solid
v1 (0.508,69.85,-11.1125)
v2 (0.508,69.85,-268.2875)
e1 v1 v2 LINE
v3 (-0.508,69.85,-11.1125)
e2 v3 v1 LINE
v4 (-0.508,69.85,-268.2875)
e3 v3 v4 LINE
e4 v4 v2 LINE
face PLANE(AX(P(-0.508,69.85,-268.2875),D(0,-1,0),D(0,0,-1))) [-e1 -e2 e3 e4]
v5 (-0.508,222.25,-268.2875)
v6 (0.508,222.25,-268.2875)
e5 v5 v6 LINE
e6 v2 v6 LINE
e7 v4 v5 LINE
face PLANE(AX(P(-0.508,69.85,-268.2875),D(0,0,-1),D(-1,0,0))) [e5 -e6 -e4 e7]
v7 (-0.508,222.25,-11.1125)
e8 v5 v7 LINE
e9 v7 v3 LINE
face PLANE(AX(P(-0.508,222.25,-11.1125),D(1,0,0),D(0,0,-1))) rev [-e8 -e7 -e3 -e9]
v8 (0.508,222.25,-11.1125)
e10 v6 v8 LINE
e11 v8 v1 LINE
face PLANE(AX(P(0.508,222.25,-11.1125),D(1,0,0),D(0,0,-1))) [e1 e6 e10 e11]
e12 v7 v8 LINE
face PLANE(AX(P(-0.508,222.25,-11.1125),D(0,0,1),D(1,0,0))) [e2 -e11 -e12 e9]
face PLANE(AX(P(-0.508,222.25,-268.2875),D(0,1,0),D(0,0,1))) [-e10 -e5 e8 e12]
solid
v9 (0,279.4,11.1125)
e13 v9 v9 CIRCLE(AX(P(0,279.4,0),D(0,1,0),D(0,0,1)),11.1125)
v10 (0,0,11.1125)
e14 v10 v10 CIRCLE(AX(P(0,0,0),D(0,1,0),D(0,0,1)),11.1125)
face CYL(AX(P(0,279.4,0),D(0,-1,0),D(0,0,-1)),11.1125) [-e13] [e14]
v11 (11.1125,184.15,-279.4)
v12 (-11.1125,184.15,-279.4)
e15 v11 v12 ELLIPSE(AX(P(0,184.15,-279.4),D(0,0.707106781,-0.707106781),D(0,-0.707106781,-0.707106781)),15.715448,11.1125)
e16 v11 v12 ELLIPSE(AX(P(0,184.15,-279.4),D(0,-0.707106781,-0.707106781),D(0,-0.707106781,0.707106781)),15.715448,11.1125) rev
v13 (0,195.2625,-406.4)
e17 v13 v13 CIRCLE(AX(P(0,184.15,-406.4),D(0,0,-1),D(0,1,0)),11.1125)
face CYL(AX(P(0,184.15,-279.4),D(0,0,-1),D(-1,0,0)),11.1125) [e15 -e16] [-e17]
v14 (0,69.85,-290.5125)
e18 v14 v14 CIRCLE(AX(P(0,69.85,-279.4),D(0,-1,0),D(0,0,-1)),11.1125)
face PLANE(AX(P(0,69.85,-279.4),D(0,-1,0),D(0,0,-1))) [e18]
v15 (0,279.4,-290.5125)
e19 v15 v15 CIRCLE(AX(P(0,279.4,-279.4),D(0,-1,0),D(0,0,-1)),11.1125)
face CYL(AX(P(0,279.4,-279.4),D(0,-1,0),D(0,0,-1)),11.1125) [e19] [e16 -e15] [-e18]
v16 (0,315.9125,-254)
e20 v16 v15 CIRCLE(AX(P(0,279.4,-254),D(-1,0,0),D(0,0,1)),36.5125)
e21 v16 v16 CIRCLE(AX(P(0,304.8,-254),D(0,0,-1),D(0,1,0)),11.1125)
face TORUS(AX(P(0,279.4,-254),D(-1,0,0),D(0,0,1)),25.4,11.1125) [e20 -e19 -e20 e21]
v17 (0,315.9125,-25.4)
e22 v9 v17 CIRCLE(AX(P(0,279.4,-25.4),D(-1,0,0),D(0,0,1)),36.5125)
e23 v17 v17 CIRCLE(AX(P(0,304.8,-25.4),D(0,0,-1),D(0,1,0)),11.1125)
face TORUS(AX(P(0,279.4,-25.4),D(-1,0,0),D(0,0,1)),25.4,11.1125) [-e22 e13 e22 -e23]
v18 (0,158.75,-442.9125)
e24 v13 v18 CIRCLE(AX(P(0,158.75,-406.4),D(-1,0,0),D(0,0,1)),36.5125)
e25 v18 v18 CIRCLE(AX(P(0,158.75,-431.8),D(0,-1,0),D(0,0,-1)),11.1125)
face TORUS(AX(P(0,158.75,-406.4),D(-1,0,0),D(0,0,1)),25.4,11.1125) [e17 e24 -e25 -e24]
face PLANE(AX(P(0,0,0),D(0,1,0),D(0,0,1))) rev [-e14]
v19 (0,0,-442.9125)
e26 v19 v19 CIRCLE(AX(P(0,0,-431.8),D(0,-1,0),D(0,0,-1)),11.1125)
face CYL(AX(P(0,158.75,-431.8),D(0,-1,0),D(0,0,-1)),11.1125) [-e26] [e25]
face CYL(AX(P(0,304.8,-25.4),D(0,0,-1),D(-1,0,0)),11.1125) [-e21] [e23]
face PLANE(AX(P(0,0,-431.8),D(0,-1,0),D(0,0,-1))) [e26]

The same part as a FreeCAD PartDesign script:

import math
import FreeCAD as App
import Part
import Sketcher
from FreeCAD import Vector
Q = App.Units.Quantity


def add_polygon(sketch, points):
    """Adds a closed chain of lines whose ends are joined by coincident constraints."""
    first, n = sketch.GeometryCount, len(points)
    for a, b in zip(points, points[1:] + points[:1]):
        sketch.addGeometry(Part.LineSegment(App.Vector(*a, 0), App.Vector(*b, 0)), False)
    for i in range(n):
        sketch.addConstraint(Sketcher.Constraint("Coincident", first + i, 2, first + (i + 1) % n, 1))

doc = App.newDocument("Part")
body = doc.addObject("PartDesign::Body", "Body")

# Sketch on XZ plane
sketch1 = doc.addObject("Sketcher::SketchObject", "Sketch")
body.addObject(sketch1)
sketch1.AttachmentSupport = (doc.XZ_Plane, [""])
sketch1.MapMode = "FlatFace"
sketch1.addGeometry(Part.Circle(Vector(0, 0, 0), Vector(0, 0, 1), 11), False)
sketch1.addConstraint(Sketcher.Constraint("Coincident", 0, 3, -1, 1))
sketch1.addConstraint(Sketcher.Constraint("Diameter", 0, Q("0.875 in")))

# Sketch on YZ plane
sketch2 = doc.addObject("Sketcher::SketchObject", "Sketch001")
body.addObject(sketch2)
sketch2.AttachmentSupport = (doc.YZ_Plane, [""])
sketch2.MapMode = "FlatFace"
sketch2.addGeometry(Part.LineSegment(Vector(0, 0, 0), Vector(279, 0, 0)), False)
sketch2.addGeometry(Part.ArcOfCircle(Part.Circle(Vector(279, -25, 0), Vector(0, 0, 1), 25), math.radians(0), math.radians(90)), False)
sketch2.addGeometry(Part.LineSegment(Vector(305, -25, 0), Vector(305, -254, 0)), False)
sketch2.addGeometry(Part.ArcOfCircle(Part.Circle(Vector(279, -254, 0), Vector(0, 0, 1), 25), math.radians(-90), math.radians(0)), False)
sketch2.addGeometry(Part.LineSegment(Vector(279, -279, 0), Vector(184, -279, 0)), False)
sketch2.addGeometry(Part.LineSegment(Vector(184, -279, 0), Vector(184, -406, 0)), False)
sketch2.addGeometry(Part.ArcOfCircle(Part.Circle(Vector(159, -406, 0), Vector(0, 0, 1), 25), math.radians(-90), math.radians(0)), False)
sketch2.addGeometry(Part.LineSegment(Vector(159, -432, 0), Vector(0, -432, 0)), False)
sketch2.addConstraint(Sketcher.Constraint("Tangent", 0, 2, 1, 2))
sketch2.addConstraint(Sketcher.Constraint("Tangent", 1, 1, 2, 1))
sketch2.addConstraint(Sketcher.Constraint("Tangent", 2, 2, 3, 2))
sketch2.addConstraint(Sketcher.Constraint("Tangent", 3, 1, 4, 1))
sketch2.addConstraint(Sketcher.Constraint("Coincident", 4, 2, 5, 1))
sketch2.addConstraint(Sketcher.Constraint("Tangent", 5, 2, 6, 2))
sketch2.addConstraint(Sketcher.Constraint("Tangent", 6, 1, 7, 1))
sketch2.addConstraint(Sketcher.Constraint("Horizontal", 0))
sketch2.addConstraint(Sketcher.Constraint("Vertical", 2))
sketch2.addConstraint(Sketcher.Constraint("Horizontal", 4))
sketch2.addConstraint(Sketcher.Constraint("Vertical", 5))
sketch2.addConstraint(Sketcher.Constraint("Horizontal", 7))
sketch2.addConstraint(Sketcher.Constraint("Coincident", 0, 1, -1, 1))
sketch2.addConstraint(Sketcher.Constraint("Equal", 1, 3))
sketch2.addConstraint(Sketcher.Constraint("Equal", 3, 6))
sketch2.addConstraint(Sketcher.Constraint("PointOnObject", 7, 2, -2))
sketch2.addConstraint(Sketcher.Constraint("Radius", 1, Q("1 in")))
sketch2.addConstraint(Sketcher.Constraint("DistanceX", 0, 1, 0, 2, Q("11 in")))
sketch2.addConstraint(Sketcher.Constraint("DistanceY", 2, 2, 2, 1, Q("9 in")))
sketch2.addConstraint(Sketcher.Constraint("DistanceY", 5, 2, 5, 1, Q("5 in")))
sketch2.addConstraint(Sketcher.Constraint("DistanceX", 4, 2, 4, 1, Q("3.75 in")))
doc.recompute()

additivepipe = doc.addObject("PartDesign::AdditivePipe", "AdditivePipe")
body.addObject(additivepipe)
additivepipe.Profile = sketch1
additivepipe.Spine = (sketch2, ["Edge1", "Edge2", "Edge3", "Edge4", "Edge5", "Edge6", "Edge7", "Edge8"])
additivepipe.Transition = "Right corner"

# Sketch on XZ plane
sketch3 = doc.addObject("Sketcher::SketchObject", "Sketch002")
body.addObject(sketch3)
sketch3.AttachmentSupport = (doc.XZ_Plane, [""])
sketch3.MapMode = "FlatFace"
sketch3.addGeometry(Part.Circle(Vector(0, 0, 0), Vector(0, 0, 1), 11), False)
sketch3.addConstraint(Sketcher.Constraint("Coincident", 0, 3, -1, 1))
sketch3.addConstraint(Sketcher.Constraint("Diameter", 0, Q("0.875 in")))

# Sketch on YZ plane
sketch4 = doc.addObject("Sketcher::SketchObject", "Sketch003")
body.addObject(sketch4)
sketch4.AttachmentSupport = (doc.YZ_Plane, [""])
sketch4.MapMode = "FlatFace"
sketch4.addGeometry(Part.LineSegment(Vector(0, 0, 0), Vector(279, 0, 0)), False)
sketch4.addGeometry(Part.ArcOfCircle(Part.Circle(Vector(279, -25, 0), Vector(0, 0, 1), 25), math.radians(0), math.radians(90)), False)
sketch4.addGeometry(Part.LineSegment(Vector(305, -25, 0), Vector(305, -254, 0)), False)
sketch4.addGeometry(Part.ArcOfCircle(Part.Circle(Vector(279, -254, 0), Vector(0, 0, 1), 25), math.radians(-90), math.radians(0)), False)
sketch4.addGeometry(Part.LineSegment(Vector(279, -279, 0), Vector(70, -279, 0)), False)
sketch4.addConstraint(Sketcher.Constraint("Tangent", 0, 2, 1, 2))
sketch4.addConstraint(Sketcher.Constraint("Tangent", 1, 1, 2, 1))
sketch4.addConstraint(Sketcher.Constraint("Tangent", 2, 2, 3, 2))
sketch4.addConstraint(Sketcher.Constraint("Tangent", 3, 1, 4, 1))
sketch4.addConstraint(Sketcher.Constraint("Horizontal", 0))
sketch4.addConstraint(Sketcher.Constraint("Vertical", 2))
sketch4.addConstraint(Sketcher.Constraint("Horizontal", 4))
sketch4.addConstraint(Sketcher.Constraint("Coincident", 0, 1, -1, 1))
sketch4.addConstraint(Sketcher.Constraint("Equal", 1, 3))
sketch4.addConstraint(Sketcher.Constraint("Radius", 1, Q("1 in")))
sketch4.addConstraint(Sketcher.Constraint("DistanceX", 0, 1, 0, 2, Q("11 in")))
sketch4.addConstraint(Sketcher.Constraint("DistanceY", 2, 2, 2, 1, Q("9 in")))
sketch4.addConstraint(Sketcher.Constraint("DistanceX", 4, 2, 4, 1, Q("8.25 in")))
doc.recompute()

additivepipe2 = doc.addObject("PartDesign::AdditivePipe", "AdditivePipe001")
body.addObject(additivepipe2)
additivepipe2.Profile = sketch3
additivepipe2.Spine = (sketch4, ["Edge1", "Edge2", "Edge3", "Edge4", "Edge5"])
body2 = doc.addObject("PartDesign::Body", "Body001")

# Sketch on YZ plane
sketch5 = doc.addObject("Sketcher::SketchObject", "Sketch004")
body2.addObject(sketch5)
sketch5.AttachmentSupport = (doc.getObject("YZ_Plane001"), [""])
sketch5.MapMode = "FlatFace"
add_polygon(sketch5, [(222, -11), (70, -11), (70, -268), (222, -268)])  # lines 0-3
sketch5.addConstraint(Sketcher.Constraint("Horizontal", 0))
sketch5.addConstraint(Sketcher.Constraint("Vertical", 1))
sketch5.addConstraint(Sketcher.Constraint("Horizontal", 2))
sketch5.addConstraint(Sketcher.Constraint("Vertical", 3))
sketch5.addConstraint(Sketcher.Constraint("DistanceX", 0, 2, 0, 1, Q("6 in")))
sketch5.addConstraint(Sketcher.Constraint("DistanceY", 1, 2, 1, 1, Q("10.125 in")))
sketch5.addConstraint(Sketcher.Constraint("DistanceX", -1, 1, 0, 2, Q("2.75 in")))
sketch5.addConstraint(Sketcher.Constraint("DistanceY", 0, 2, -1, 1, Q("0.4375 in")))
pad1 = doc.addObject("PartDesign::Pad", "Pad")
body2.addObject(pad1)
pad1.Profile = sketch5
pad1.Type = "TwoLengths"
pad1.Length = Q("0.02 in")
pad1.Length2 = Q("0.02 in")

doc.recompute()
